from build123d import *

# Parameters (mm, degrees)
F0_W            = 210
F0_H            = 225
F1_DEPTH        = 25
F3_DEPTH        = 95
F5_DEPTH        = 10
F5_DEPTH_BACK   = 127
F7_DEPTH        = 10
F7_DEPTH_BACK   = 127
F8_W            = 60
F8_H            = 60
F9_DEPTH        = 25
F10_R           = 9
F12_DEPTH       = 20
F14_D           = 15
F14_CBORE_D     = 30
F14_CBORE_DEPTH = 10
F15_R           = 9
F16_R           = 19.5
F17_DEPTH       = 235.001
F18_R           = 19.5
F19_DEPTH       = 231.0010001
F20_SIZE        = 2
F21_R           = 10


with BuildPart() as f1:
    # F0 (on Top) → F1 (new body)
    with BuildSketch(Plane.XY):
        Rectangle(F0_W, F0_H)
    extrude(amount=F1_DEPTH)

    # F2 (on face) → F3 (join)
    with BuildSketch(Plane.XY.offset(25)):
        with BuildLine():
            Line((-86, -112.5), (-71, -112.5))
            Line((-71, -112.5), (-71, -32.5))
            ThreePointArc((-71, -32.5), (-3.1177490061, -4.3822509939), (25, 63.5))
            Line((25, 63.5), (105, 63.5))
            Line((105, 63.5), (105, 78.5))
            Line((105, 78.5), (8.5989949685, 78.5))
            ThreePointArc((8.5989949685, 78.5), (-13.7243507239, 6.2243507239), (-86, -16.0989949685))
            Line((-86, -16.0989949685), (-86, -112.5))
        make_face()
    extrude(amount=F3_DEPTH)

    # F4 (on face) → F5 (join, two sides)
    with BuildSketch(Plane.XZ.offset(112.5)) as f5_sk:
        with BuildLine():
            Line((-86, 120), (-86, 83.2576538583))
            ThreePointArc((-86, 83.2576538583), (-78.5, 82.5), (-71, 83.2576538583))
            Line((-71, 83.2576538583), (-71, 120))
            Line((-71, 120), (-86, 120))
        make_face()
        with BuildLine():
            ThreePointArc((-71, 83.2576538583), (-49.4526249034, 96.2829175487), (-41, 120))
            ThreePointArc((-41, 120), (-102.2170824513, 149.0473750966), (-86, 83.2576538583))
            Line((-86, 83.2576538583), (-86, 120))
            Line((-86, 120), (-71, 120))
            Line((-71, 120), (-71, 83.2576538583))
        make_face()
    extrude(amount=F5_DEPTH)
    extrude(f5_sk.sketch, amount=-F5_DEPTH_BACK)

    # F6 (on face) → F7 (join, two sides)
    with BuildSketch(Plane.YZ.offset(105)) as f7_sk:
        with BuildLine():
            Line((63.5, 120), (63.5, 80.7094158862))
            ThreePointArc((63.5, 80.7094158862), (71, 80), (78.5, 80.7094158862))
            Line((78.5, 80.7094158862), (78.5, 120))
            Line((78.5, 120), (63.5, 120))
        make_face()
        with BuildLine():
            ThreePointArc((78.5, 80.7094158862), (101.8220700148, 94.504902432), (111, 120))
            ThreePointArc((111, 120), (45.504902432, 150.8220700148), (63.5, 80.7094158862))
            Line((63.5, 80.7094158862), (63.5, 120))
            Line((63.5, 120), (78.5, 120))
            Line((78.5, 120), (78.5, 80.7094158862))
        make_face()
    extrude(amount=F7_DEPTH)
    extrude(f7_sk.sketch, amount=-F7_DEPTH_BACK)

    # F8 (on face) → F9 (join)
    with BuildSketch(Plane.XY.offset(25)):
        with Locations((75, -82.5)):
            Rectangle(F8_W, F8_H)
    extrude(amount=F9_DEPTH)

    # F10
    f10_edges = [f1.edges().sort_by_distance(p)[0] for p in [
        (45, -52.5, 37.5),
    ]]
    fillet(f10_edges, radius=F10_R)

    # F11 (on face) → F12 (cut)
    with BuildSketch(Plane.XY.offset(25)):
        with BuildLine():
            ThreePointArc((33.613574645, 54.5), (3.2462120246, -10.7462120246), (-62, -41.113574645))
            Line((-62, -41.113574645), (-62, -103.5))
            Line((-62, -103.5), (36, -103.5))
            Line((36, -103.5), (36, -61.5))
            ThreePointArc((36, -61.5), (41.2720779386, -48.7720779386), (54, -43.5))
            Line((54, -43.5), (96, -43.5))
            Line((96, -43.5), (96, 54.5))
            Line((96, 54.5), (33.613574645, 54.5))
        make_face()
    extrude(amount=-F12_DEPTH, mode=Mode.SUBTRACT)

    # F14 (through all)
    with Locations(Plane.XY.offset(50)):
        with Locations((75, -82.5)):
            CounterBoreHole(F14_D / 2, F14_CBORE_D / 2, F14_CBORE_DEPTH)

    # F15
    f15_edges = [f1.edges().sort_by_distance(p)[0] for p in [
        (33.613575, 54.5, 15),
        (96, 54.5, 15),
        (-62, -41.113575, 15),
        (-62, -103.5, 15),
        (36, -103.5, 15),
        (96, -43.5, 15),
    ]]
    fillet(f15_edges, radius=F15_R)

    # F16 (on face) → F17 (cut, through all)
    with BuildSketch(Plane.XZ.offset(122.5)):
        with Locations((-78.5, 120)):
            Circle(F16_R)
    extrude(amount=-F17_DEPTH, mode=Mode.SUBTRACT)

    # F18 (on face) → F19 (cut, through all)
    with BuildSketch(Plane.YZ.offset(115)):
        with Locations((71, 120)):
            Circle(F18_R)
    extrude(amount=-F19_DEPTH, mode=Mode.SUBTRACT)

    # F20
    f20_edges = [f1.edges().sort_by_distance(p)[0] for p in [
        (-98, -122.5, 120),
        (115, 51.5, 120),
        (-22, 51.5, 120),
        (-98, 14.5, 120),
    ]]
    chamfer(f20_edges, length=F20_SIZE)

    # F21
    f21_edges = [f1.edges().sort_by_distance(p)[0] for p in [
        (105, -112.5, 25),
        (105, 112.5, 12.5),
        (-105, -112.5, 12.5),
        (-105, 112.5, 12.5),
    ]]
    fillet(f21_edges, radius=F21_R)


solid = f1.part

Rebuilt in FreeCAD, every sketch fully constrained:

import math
import FreeCAD as App
import Part
import Sketcher

V = App.Vector
Q = App.Units.Quantity


def edges_at(feature, points):
    """Names of the edges that pass closest to the given points."""
    edges = feature.Shape.Edges
    near = lambda p: min(range(len(edges)), key=lambda i: edges[i].distToShape(Part.Vertex(*p))[0])
    return sorted({f"Edge{near(p) + 1}" for p in points})


def add_polygon(sketch, points):
    """Adds a closed chain of lines whose ends are joined by coincident constraints."""
    first, n = sketch.GeometryCount, len(points)
    for a, b in zip(points, points[1:] + points[:1]):
        sketch.addGeometry(Part.LineSegment(App.Vector(*a, 0), App.Vector(*b, 0)), False)
    for i in range(n):
        sketch.addConstraint(Sketcher.Constraint("Coincident", first + i, 2, first + (i + 1) % n, 1))

doc = App.newDocument("Part")
params = doc.addObject("Spreadsheet::Sheet", "Params")
for row, (alias, value) in enumerate([
    ("sketch1_width", "210 mm"),
    ("sketch1_height", "225 mm"),
    ("pad1_length", "25 mm"),
    ("sketch2_radius", "96 mm"),
    ("sketch2_radius2", "81 mm"),
    ("sketch2_width", "15 mm"),
    ("sketch2_width2", "80 mm"),
    ("pad2_length", "95 mm"),
    ("sketch3_radius", "37.5 mm"),
    ("pad3_length", "10 mm"),
    ("pad3_length2", "127 mm"),
    ("sketch4_radius", "40 mm"),
    ("pad4_length", "10 mm"),
    ("pad4_length2", "127 mm"),
    ("sketch5_width", "60 mm"),
    ("pad5_length", "25 mm"),
    ("fillet_radius", "9 mm"),
    ("sketch6_radius", "105 mm"),
    ("sketch6_radius2", "18 mm"),
    ("sketch6_width", "98 mm"),
    ("sketch6_width2", "42 mm"),
    ("pocket1_length", "20 mm"),
    ("sketch7_diameter", "15 mm"),
    ("hole_diameter", "15 mm"),
    ("hole_cbore_diameter", "30 mm"),
    ("hole_cbore_depth", "10 mm"),
    ("fillet2_radius", "9 mm"),
    ("sketch8_diameter", "39 mm"),
    ("sketch9_diameter", "39 mm"),
    ("chamfer_size", "2 mm"),
    ("fillet3_radius", "10 mm"),
], start=1):
    params.set(f"A{row}", alias)
    params.set(f"B{row}", "=" + value)
    params.setAlias(f"B{row}", alias)

body = doc.addObject("PartDesign::Body", "Body")

sketch1 = body.newObject("Sketcher::SketchObject", "Sketch")
sketch1.AttachmentSupport = (doc.getObject("XY_Plane"), [""])
sketch1.MapMode = "FlatFace"
add_polygon(sketch1, [(-105, 112), (-105, -112), (105, -112), (105, 112)])
sketch1.addConstraint(Sketcher.Constraint("Vertical", 0))
sketch1.addConstraint(Sketcher.Constraint("Horizontal", 1))
sketch1.addConstraint(Sketcher.Constraint("Vertical", 2))
sketch1.addConstraint(Sketcher.Constraint("Horizontal", 3))
sketch1.addConstraint(Sketcher.Constraint("Symmetric", 0, 2, 2, 2, -1, 1))
sketch1.addConstraint(Sketcher.Constraint("DistanceX", 1, 1, 1, 2, Q("210 mm")))
sketch1.addConstraint(Sketcher.Constraint("DistanceY", 0, 2, 0, 1, Q("225 mm")))
sketch1.setExpression("Constraints[9]", "Params.sketch1_width")
sketch1.setExpression("Constraints[10]", "Params.sketch1_height")
pad1 = body.newObject("PartDesign::Pad", "Pad")
pad1.Profile = sketch1
pad1.setExpression("Length", "Params.pad1_length")

sketch2 = body.newObject("Sketcher::SketchObject", "Sketch001")
sketch2.AttachmentSupport = (doc.getObject("XY_Plane"), [""])
sketch2.MapMode = "FlatFace"
sketch2.AttachmentOffset = App.Placement(V(0, 0, 25), App.Rotation())
sketch2.addGeometry(Part.LineSegment(V(-86, -112, 0), V(-71, -112, 0)), False)
sketch2.addGeometry(Part.LineSegment(V(-71, -112, 0), V(-71, -32, 0)), False)
sketch2.addGeometry(Part.ArcOfCircle(Part.Circle(V(-71, 64, 0), V(0, 0, 1), 96), math.radians(-90), math.radians(0)), False)
sketch2.addGeometry(Part.LineSegment(V(25, 64, 0), V(105, 64, 0)), False)
sketch2.addGeometry(Part.LineSegment(V(105, 64, 0), V(105, 78, 0)), False)
sketch2.addGeometry(Part.LineSegment(V(105, 78, 0), V(9, 78, 0)), False)
sketch2.addGeometry(Part.ArcOfCircle(Part.Circle(V(-71, 64, 0), V(0, 0, 1), 81), math.radians(-101), math.radians(11)), False)
sketch2.addGeometry(Part.LineSegment(V(-86, -16, 0), V(-86, -112, 0)), False)
sketch2.addConstraint(Sketcher.Constraint("Coincident", 0, 2, 1, 1))
sketch2.addConstraint(Sketcher.Constraint("Coincident", 1, 2, 2, 1))
sketch2.addConstraint(Sketcher.Constraint("Coincident", 2, 2, 3, 1))
sketch2.addConstraint(Sketcher.Constraint("Coincident", 3, 2, 4, 1))
sketch2.addConstraint(Sketcher.Constraint("Coincident", 4, 2, 5, 1))
sketch2.addConstraint(Sketcher.Constraint("Coincident", 5, 2, 6, 2))
sketch2.addConstraint(Sketcher.Constraint("Coincident", 6, 1, 7, 1))
sketch2.addConstraint(Sketcher.Constraint("Coincident", 7, 2, 0, 1))
sketch2.addConstraint(Sketcher.Constraint("Horizontal", 0))
sketch2.addConstraint(Sketcher.Constraint("Vertical", 1))
sketch2.addConstraint(Sketcher.Constraint("Horizontal", 3))
sketch2.addConstraint(Sketcher.Constraint("Vertical", 4))
sketch2.addConstraint(Sketcher.Constraint("Horizontal", 5))
sketch2.addConstraint(Sketcher.Constraint("Vertical", 7))
sketch2.addConstraint(Sketcher.Constraint("Coincident", 6, 3, 2, 3))
sketch2.addConstraint(Sketcher.Constraint("Horizontal", 6, 3, 2, 2))
sketch2.addConstraint(Sketcher.Constraint("Vertical", 6, 3, 0, 2))
sketch2.addConstraint(Sketcher.Constraint("Equal", 3, 1))
sketch2.addConstraint(Sketcher.Constraint("Equal", 0, 4))
sketch2.addConstraint(Sketcher.Constraint("Radius", 2, Q("96 mm")))
sketch2.addConstraint(Sketcher.Constraint("Radius", 6, Q("81 mm")))
sketch2.addConstraint(Sketcher.Constraint("DistanceX", 0, 1, 0, 2, Q("15 mm")))
sketch2.addConstraint(Sketcher.Constraint("DistanceX", 3, 1, 3, 2, Q("80 mm")))
sketch2.addConstraint(Sketcher.Constraint("DistanceX", 2, 3, -1, 1, Q("71 mm")))
sketch2.addConstraint(Sketcher.Constraint("DistanceY", -1, 1, 2, 3, Q("63.5 mm")))
sketch2.setExpression("Constraints[19]", "Params.sketch2_radius")
sketch2.setExpression("Constraints[20]", "Params.sketch2_radius2")
sketch2.setExpression("Constraints[21]", "Params.sketch2_width")
sketch2.setExpression("Constraints[22]", "Params.sketch2_width2")
pad2 = body.newObject("PartDesign::Pad", "Pad001")
pad2.Profile = sketch2
pad2.setExpression("Length", "Params.pad2_length")

sketch3 = body.newObject("Sketcher::SketchObject", "Sketch002")
sketch3.AttachmentSupport = (doc.getObject("XZ_Plane"), [""])
sketch3.MapMode = "FlatFace"
sketch3.AttachmentOffset = App.Placement(V(0, 0, 112.5), App.Rotation())
sketch3.addGeometry(Part.ArcOfCircle(Part.Circle(V(-78, 120, 0), V(0, 0, 1), 37), math.radians(-102), math.radians(-78)), False)
sketch3.addGeometry(Part.ArcOfCircle(Part.Circle(V(-78, 120, 0), V(0, 0, 1), 38), math.radians(-78), math.radians(0)), False)
sketch3.addGeometry(Part.ArcOfCircle(Part.Circle(V(-78, 120, 0), V(0, 0, 1), 38), math.radians(0), math.radians(258)), False)
sketch3.addConstraint(Sketcher.Constraint("Tangent", 0, 2, 1, 1))
sketch3.addConstraint(Sketcher.Constraint("Tangent", 1, 2, 2, 1))
sketch3.addConstraint(Sketcher.Constraint("Tangent", 2, 2, 0, 1))
sketch3.addConstraint(Sketcher.Constraint("Horizontal", 2, 3, 1, 2))
sketch3.addConstraint(Sketcher.Constraint("Horizontal", 0, 2, 2, 2))
sketch3.addConstraint(Sketcher.Constraint("Radius", 0, Q("37.5 mm")))
sketch3.addConstraint(Sketcher.Constraint("DistanceY", -1, 1, 0, 3, Q("120 mm")))
sketch3.addConstraint(Sketcher.Constraint("DistanceX", 0, 2, -1, 1, Q("71 mm")))
sketch3.addConstraint(Sketcher.Constraint("DistanceX", 1, 2, -1, 1, Q("41 mm")))
sketch3.setExpression("Constraints[5]", "Params.sketch3_radius")
pad3 = body.newObject("PartDesign::Pad", "Pad002")
pad3.Profile = sketch3
pad3.Type = "TwoLengths"
pad3.setExpression("Length", "Params.pad3_length")
pad3.setExpression("Length2", "Params.pad3_length2")

sketch4 = body.newObject("Sketcher::SketchObject", "Sketch003")
sketch4.AttachmentSupport = (doc.getObject("YZ_Plane"), [""])
sketch4.MapMode = "FlatFace"
sketch4.AttachmentOffset = App.Placement(V(0, 0, 105), App.Rotation())
sketch4.addGeometry(Part.ArcOfCircle(Part.Circle(V(71, 120, 0), V(0, 0, 1), 40), math.radians(-101), math.radians(-79)), False)
sketch4.addGeometry(Part.ArcOfCircle(Part.Circle(V(71, 120, 0), V(0, 0, 1), 40), math.radians(-79), math.radians(0)), False)
sketch4.addGeometry(Part.ArcOfCircle(Part.Circle(V(71, 120, 0), V(0, 0, 1), 40), math.radians(0), math.radians(259)), False)
sketch4.addConstraint(Sketcher.Constraint("Tangent", 0, 2, 1, 1))
sketch4.addConstraint(Sketcher.Constraint("Tangent", 1, 2, 2, 1))
sketch4.addConstraint(Sketcher.Constraint("Tangent", 2, 2, 0, 1))
sketch4.addConstraint(Sketcher.Constraint("Horizontal", 2, 3, 1, 2))
sketch4.addConstraint(Sketcher.Constraint("Horizontal", 0, 2, 2, 2))
sketch4.addConstraint(Sketcher.Constraint("Radius", 0, Q("40 mm")))
sketch4.addConstraint(Sketcher.Constraint("DistanceX", -1, 1, 0, 3, Q("71 mm")))
sketch4.addConstraint(Sketcher.Constraint("DistanceY", -1, 1, 0, 3, Q("120 mm")))
sketch4.addConstraint(Sketcher.Constraint("DistanceX", 2, 2, 0, 2, Q("15 mm")))
sketch4.setExpression("Constraints[5]", "Params.sketch4_radius")
pad4 = body.newObject("PartDesign::Pad", "Pad003")
pad4.Profile = sketch4
pad4.Type = "TwoLengths"
pad4.setExpression("Length", "Params.pad4_length")
pad4.setExpression("Length2", "Params.pad4_length2")

sketch5 = body.newObject("Sketcher::SketchObject", "Sketch004")
sketch5.AttachmentSupport = (doc.getObject("XY_Plane"), [""])
sketch5.MapMode = "FlatFace"
sketch5.AttachmentOffset = App.Placement(V(0, 0, 25), App.Rotation())
add_polygon(sketch5, [(45, -52), (45, -112), (105, -112), (105, -52)])
sketch5.addConstraint(Sketcher.Constraint("Vertical", 0))
sketch5.addConstraint(Sketcher.Constraint("Horizontal", 1))
sketch5.addConstraint(Sketcher.Constraint("Vertical", 2))
sketch5.addConstraint(Sketcher.Constraint("Horizontal", 3))
sketch5.addConstraint(Sketcher.Constraint("Equal", 3, 0))
sketch5.addConstraint(Sketcher.Constraint("DistanceX", 1, 1, 1, 2, Q("60 mm")))
sketch5.addConstraint(Sketcher.Constraint("DistanceX", -1, 1, 0, 2, Q("45 mm")))
sketch5.addConstraint(Sketcher.Constraint("DistanceY", 0, 2, -1, 1, Q("112.5 mm")))
sketch5.setExpression("Constraints[9]", "Params.sketch5_width")
pad5 = body.newObject("PartDesign::Pad", "Pad004")
pad5.Profile = sketch5
pad5.setExpression("Length", "Params.pad5_length")
doc.recompute()

fillet = body.newObject("PartDesign::Fillet", "Fillet")
fillet.Base = (pad5, edges_at(pad5, [(45, -52.5, 37.5)]))
fillet.setExpression("Radius", "Params.fillet_radius")

sketch6 = body.newObject("Sketcher::SketchObject", "Sketch005")
sketch6.AttachmentSupport = (doc.getObject("XY_Plane"), [""])
sketch6.MapMode = "FlatFace"
sketch6.AttachmentOffset = App.Placement(V(0, 0, 25), App.Rotation())
sketch6.addGeometry(Part.ArcOfCircle(Part.Circle(V(-71, 64, 0), V(0, 0, 1), 105), math.radians(-85), math.radians(-5)), False)
sketch6.addGeometry(Part.LineSegment(V(-62, -41, 0), V(-62, -104, 0)), False)
sketch6.addGeometry(Part.LineSegment(V(-62, -104, 0), V(36, -104, 0)), False)
sketch6.addGeometry(Part.LineSegment(V(36, -104, 0), V(36, -62, 0)), False)
sketch6.addGeometry(Part.ArcOfCircle(Part.Circle(V(54, -62, 0), V(0, 0, 1), 18), math.radians(90), math.radians(180)), False)
sketch6.addGeometry(Part.LineSegment(V(54, -44, 0), V(96, -44, 0)), False)
sketch6.addGeometry(Part.LineSegment(V(96, -44, 0), V(96, 54, 0)), False)
sketch6.addGeometry(Part.LineSegment(V(96, 54, 0), V(34, 54, 0)), False)
sketch6.addConstraint(Sketcher.Constraint("Coincident", 0, 1, 1, 1))
sketch6.addConstraint(Sketcher.Constraint("Coincident", 1, 2, 2, 1))
sketch6.addConstraint(Sketcher.Constraint("Coincident", 2, 2, 3, 1))
sketch6.addConstraint(Sketcher.Constraint("Tangent", 3, 2, 4, 2))
sketch6.addConstraint(Sketcher.Constraint("Tangent", 4, 1, 5, 1))
sketch6.addConstraint(Sketcher.Constraint("Coincident", 5, 2, 6, 1))
sketch6.addConstraint(Sketcher.Constraint("Coincident", 6, 2, 7, 1))
sketch6.addConstraint(Sketcher.Constraint("Coincident", 7, 2, 0, 2))
sketch6.addConstraint(Sketcher.Constraint("Vertical", 1))
sketch6.addConstraint(Sketcher.Constraint("Horizontal", 2))
sketch6.addConstraint(Sketcher.Constraint("Vertical", 3))
sketch6.addConstraint(Sketcher.Constraint("Horizontal", 5))
sketch6.addConstraint(Sketcher.Constraint("Vertical", 6))
sketch6.addConstraint(Sketcher.Constraint("Horizontal", 7))
sketch6.addConstraint(Sketcher.Constraint("Equal", 7, 1))
sketch6.addConstraint(Sketcher.Constraint("Equal", 5, 3))
sketch6.addConstraint(Sketcher.Constraint("Equal", 2, 6))
sketch6.addConstraint(Sketcher.Constraint("Radius", 0, Q("105 mm")))
sketch6.addConstraint(Sketcher.Constraint("Radius", 4, Q("18 mm")))
sketch6.addConstraint(Sketcher.Constraint("DistanceX", 2, 1, 2, 2, Q("98 mm")))
sketch6.addConstraint(Sketcher.Constraint("DistanceX", 5, 1, 5, 2, Q("42 mm")))
sketch6.addConstraint(Sketcher.Constraint("DistanceX", 0, 3, -1, 1, Q("71 mm")))
sketch6.addConstraint(Sketcher.Constraint("DistanceX", -1, 1, 4, 3, Q("54 mm")))
sketch6.addConstraint(Sketcher.Constraint("DistanceY", -1, 1, 0, 3, Q("63.5 mm")))
sketch6.setExpression("Constraints[17]", "Params.sketch6_radius")
sketch6.setExpression("Constraints[18]", "Params.sketch6_radius2")
sketch6.setExpression("Constraints[19]", "Params.sketch6_width")
sketch6.setExpression("Constraints[20]", "Params.sketch6_width2")
pocket1 = body.newObject("PartDesign::Pocket", "Pocket")
pocket1.Profile = sketch6
pocket1.setExpression("Length", "Params.pocket1_length")

sketch7 = body.newObject("Sketcher::SketchObject", "Sketch006")
sketch7.AttachmentSupport = (doc.getObject("XY_Plane"), [""])
sketch7.MapMode = "FlatFace"
sketch7.AttachmentOffset = App.Placement(V(0, 0, 50), App.Rotation())
sketch7.addGeometry(Part.Circle(V(75, -82, 0), V(0, 0, 1), 8), False)
sketch7.addConstraint(Sketcher.Constraint("Diameter", 0, Q("15 mm")))
sketch7.addConstraint(Sketcher.Constraint("DistanceX", -1, 1, 0, 3, Q("75 mm")))
sketch7.addConstraint(Sketcher.Constraint("DistanceY", 0, 3, -1, 1, Q("82.5 mm")))
sketch7.setExpression("Constraints[0]", "Params.sketch7_diameter")
doc.recompute()
hole = body.newObject("PartDesign::Hole", "Hole")
hole.Profile = sketch7
hole.ThreadType = "None"
hole.setExpression("Diameter", "Params.hole_diameter")
hole.DepthType = "ThroughAll"
hole.HoleCutType = "Counterbore"
hole.setExpression("HoleCutDiameter", "Params.hole_cbore_diameter")
hole.setExpression("HoleCutDepth", "Params.hole_cbore_depth")
doc.recompute()

fillet2 = body.newObject("PartDesign::Fillet", "Fillet001")
fillet2.Base = (hole, edges_at(hole, [
    (33.614, 54.5, 15),
    (96, 54.5, 15),
    (-62, -41.114, 15),
    (-62, -103.5, 15),
    (36, -103.5, 15),
    (96, -43.5, 15),
]))
fillet2.setExpression("Radius", "Params.fillet2_radius")

sketch8 = body.newObject("Sketcher::SketchObject", "Sketch007")
sketch8.AttachmentSupport = (doc.getObject("XZ_Plane"), [""])
sketch8.MapMode = "FlatFace"
sketch8.AttachmentOffset = App.Placement(V(0, 0, 122.5), App.Rotation())
sketch8.addGeometry(Part.Circle(V(-78, 120, 0), V(0, 0, 1), 20), False)
sketch8.addConstraint(Sketcher.Constraint("Diameter", 0, Q("39 mm")))
sketch8.addConstraint(Sketcher.Constraint("DistanceY", -1, 1, 0, 3, Q("120 mm")))
sketch8.addConstraint(Sketcher.Constraint("DistanceX", 0, 3, -1, 1, Q("78.5 mm")))
sketch8.setExpression("Constraints[0]", "Params.sketch8_diameter")
pocket2 = body.newObject("PartDesign::Pocket", "Pocket001")
pocket2.Profile = sketch8
pocket2.Type = "ThroughAll"

sketch9 = body.newObject("Sketcher::SketchObject", "Sketch008")
sketch9.AttachmentSupport = (doc.getObject("YZ_Plane"), [""])
sketch9.MapMode = "FlatFace"
sketch9.AttachmentOffset = App.Placement(V(0, 0, 115), App.Rotation())
sketch9.addGeometry(Part.Circle(V(71, 120, 0), V(0, 0, 1), 20), False)
sketch9.addConstraint(Sketcher.Constraint("Diameter", 0, Q("39 mm")))
sketch9.addConstraint(Sketcher.Constraint("DistanceX", -1, 1, 0, 3, Q("71 mm")))
sketch9.addConstraint(Sketcher.Constraint("DistanceY", -1, 1, 0, 3, Q("120 mm")))
sketch9.setExpression("Constraints[0]", "Params.sketch9_diameter")
pocket3 = body.newObject("PartDesign::Pocket", "Pocket002")
pocket3.Profile = sketch9
pocket3.Type = "ThroughAll"
doc.recompute()

chamfer = body.newObject("PartDesign::Chamfer", "Chamfer")
chamfer.Base = (pocket3, edges_at(pocket3, [
    (-98, -122.5, 120),
    (115, 51.5, 120),
    (-22, 51.5, 120),
    (-98, 14.5, 120),
]))
chamfer.setExpression("Size", "Params.chamfer_size")
doc.recompute()

fillet3 = body.newObject("PartDesign::Fillet", "Fillet002")
fillet3.Base = (chamfer, edges_at(chamfer, [
    (105, -112.5, 25),
    (105, 112.5, 12.5),
    (-105, -112.5, 12.5),
    (-105, 112.5, 12.5),
]))
fillet3.setExpression("Radius", "Params.fillet3_radius")

doc.recompute()
